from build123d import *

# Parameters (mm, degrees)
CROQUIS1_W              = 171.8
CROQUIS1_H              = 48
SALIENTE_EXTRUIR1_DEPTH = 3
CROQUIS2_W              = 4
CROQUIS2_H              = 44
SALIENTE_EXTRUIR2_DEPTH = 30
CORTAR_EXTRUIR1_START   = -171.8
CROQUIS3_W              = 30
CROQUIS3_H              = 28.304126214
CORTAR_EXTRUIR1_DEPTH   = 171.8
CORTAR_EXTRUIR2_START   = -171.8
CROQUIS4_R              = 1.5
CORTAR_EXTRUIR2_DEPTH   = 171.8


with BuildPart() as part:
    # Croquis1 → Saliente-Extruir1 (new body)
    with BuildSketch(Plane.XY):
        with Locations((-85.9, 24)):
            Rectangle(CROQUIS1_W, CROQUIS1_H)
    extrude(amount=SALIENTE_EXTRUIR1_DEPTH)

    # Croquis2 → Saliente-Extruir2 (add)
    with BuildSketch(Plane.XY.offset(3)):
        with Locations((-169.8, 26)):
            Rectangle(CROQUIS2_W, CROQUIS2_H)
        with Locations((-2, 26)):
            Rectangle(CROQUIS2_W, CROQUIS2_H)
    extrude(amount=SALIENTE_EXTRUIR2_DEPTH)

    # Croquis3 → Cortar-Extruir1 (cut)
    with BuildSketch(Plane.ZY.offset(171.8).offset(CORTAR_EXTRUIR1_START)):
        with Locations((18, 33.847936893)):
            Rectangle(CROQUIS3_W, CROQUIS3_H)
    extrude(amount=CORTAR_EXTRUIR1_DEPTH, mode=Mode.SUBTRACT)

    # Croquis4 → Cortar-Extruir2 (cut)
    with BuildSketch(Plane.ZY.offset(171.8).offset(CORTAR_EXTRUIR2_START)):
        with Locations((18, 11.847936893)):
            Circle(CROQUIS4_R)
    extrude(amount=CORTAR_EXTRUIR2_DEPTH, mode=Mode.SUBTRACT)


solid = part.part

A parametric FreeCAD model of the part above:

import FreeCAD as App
import Part
import Sketcher
Q = App.Units.Quantity


def add_polygon(sketch, points):
    """Adds a closed chain of lines whose ends are joined by coincident constraints."""
    first, n = sketch.GeometryCount, len(points)
    for a, b in zip(points, points[1:] + points[:1]):
        sketch.addGeometry(Part.LineSegment(App.Vector(*a, 0), App.Vector(*b, 0)), False)
    for i in range(n):
        sketch.addConstraint(Sketcher.Constraint("Coincident", first + i, 2, first + (i + 1) % n, 1))

doc = App.newDocument("Part")
params = doc.addObject("Spreadsheet::Sheet", "Params")
for row, (alias, value) in enumerate([
    ("sketch1_height", "48 mm"),
    ("sketch1_width", "171.8 mm"),
    ("pad1_length", "3 mm"),
    ("sketch2_width", "4 mm"),
    ("sketch2_height", "44 mm"),
    ("pad2_length", "30 mm"),
    ("sketch3_height", "30 mm"),
    ("pocket1_length", "171.8 mm"),
    ("sketch4_diameter", "3 mm"),
    ("pocket2_length", "171.8 mm"),
], start=1):
    params.set(f"A{row}", alias)
    params.set(f"B{row}", "=" + value)
    params.setAlias(f"B{row}", alias)

body = doc.addObject("PartDesign::Body", "Body")

# Sketch on XY plane
sketch1 = body.newObject("Sketcher::SketchObject", "Sketch")
sketch1.AttachmentSupport = (doc.getObject("XY_Plane"), [""])
sketch1.MapMode = "FlatFace"
add_polygon(sketch1, [(-172, 48), (-172, 0), (0, 0), (0, 48)])  # lines 0-3
sketch1.addConstraint([
    Sketcher.Constraint("Vertical", 0),
    Sketcher.Constraint("Horizontal", 1),
    Sketcher.Constraint("Vertical", 2),
    Sketcher.Constraint("Horizontal", 3),
    Sketcher.Constraint("Coincident", 1, 2, -1, 1),
    Sketcher.Constraint("DistanceY", 0, 2, 0, 1, Q("48 mm")),
    Sketcher.Constraint("DistanceX", 1, 1, 1, 2, Q("171.8 mm")),
])
sketch1.setExpression("Constraints[9]", "Params.sketch1_height")
sketch1.setExpression("Constraints[10]", "Params.sketch1_width")
pad1 = body.newObject("PartDesign::Pad", "Pad")
pad1.Profile = sketch1
pad1.setExpression("Length", "Params.pad1_length")

# Sketch on XY plane
sketch2 = body.newObject("Sketcher::SketchObject", "Sketch001")
sketch2.AttachmentSupport = (doc.getObject("XY_Plane"), [""])
sketch2.MapMode = "FlatFace"
sketch2.AttachmentOffset = App.Placement(App.Vector(0, 0, 3), App.Rotation())
add_polygon(sketch2, [(-171.8, 48), (-171.8, 4), (-167.8, 4), (-167.8, 48)])  # lines 0-3
add_polygon(sketch2, [(-4, 48), (-4, 4), (0, 4), (0, 48)])  # lines 4-7
sketch2.addConstraint([
    Sketcher.Constraint("Vertical", 0),
    Sketcher.Constraint("Horizontal", 1),
    Sketcher.Constraint("Vertical", 2),
    Sketcher.Constraint("Horizontal", 3),
    Sketcher.Constraint("Vertical", 4),
    Sketcher.Constraint("Horizontal", 5),
    Sketcher.Constraint("Vertical", 6),
    Sketcher.Constraint("Horizontal", 7),
    Sketcher.Constraint("PointOnObject", 5, 2, -2),
    Sketcher.Constraint("Horizontal", 1, 2, 4, 2),
    Sketcher.Constraint("Horizontal", 3, 2, 6, 2),
    Sketcher.Constraint("Equal", 3, 5),
    Sketcher.Constraint("DistanceX", 1, 1, 1, 2, Q("4 mm")),
    Sketcher.Constraint("DistanceY", 0, 2, 0, 1, Q("44 mm")),
    Sketcher.Constraint("DistanceY", -1, 1, 0, 2, Q("4 mm")),
    Sketcher.Constraint("DistanceX", 0, 2, -1, 1, Q("171.8 mm")),
])
sketch2.setExpression("Constraints[20]", "Params.sketch2_width")
sketch2.setExpression("Constraints[21]", "Params.sketch2_height")
pad2 = body.newObject("PartDesign::Pad", "Pad001")
pad2.Profile = sketch2
pad2.setExpression("Length", "Params.pad2_length")

# Sketch on YZ plane
sketch3 = body.newObject("Sketcher::SketchObject", "Sketch002")
sketch3.AttachmentSupport = (doc.getObject("YZ_Plane"), [""])
sketch3.MapMode = "FlatFace"
add_polygon(sketch3, [(48, 3), (20, 3), (20, 33), (48, 33)])  # lines 0-3
sketch3.addConstraint([
    Sketcher.Constraint("Horizontal", 0),
    Sketcher.Constraint("Vertical", 1),
    Sketcher.Constraint("Horizontal", 2),
    Sketcher.Constraint("Vertical", 3),
    Sketcher.Constraint("DistanceY", 1, 1, 1, 2, Q("30 mm")),
    Sketcher.Constraint("DistanceY", -1, 1, 0, 2, Q("3 mm")),
    Sketcher.Constraint("DistanceX", -1, 1, 2, 2, Q("48 mm")),
    Sketcher.Constraint("DistanceX", 0, 2, 0, 1, Q("28.304126 mm")),
])
sketch3.setExpression("Constraints[8]", "Params.sketch3_height")
pocket1 = body.newObject("PartDesign::Pocket", "Pocket")
pocket1.Profile = sketch3
pocket1.setExpression("Length", "Params.pocket1_length")

# Sketch on YZ plane
sketch4 = body.newObject("Sketcher::SketchObject", "Sketch003")
sketch4.AttachmentSupport = (doc.getObject("YZ_Plane"), [""])
sketch4.MapMode = "FlatFace"
sketch4.addGeometry(Part.Circle(App.Vector(11.8, 18, 0), App.Vector(0, 0, 1), 1.5), False)
sketch4.addConstraint([
    Sketcher.Constraint("Diameter", 0, Q("3 mm")),
    Sketcher.Constraint("DistanceY", -1, 1, 0, 3, Q("18 mm")),
    Sketcher.Constraint("DistanceX", -1, 1, 0, 3, Q("11.847937 mm")),
])
sketch4.setExpression("Constraints[0]", "Params.sketch4_diameter")
pocket2 = body.newObject("PartDesign::Pocket", "Pocket001")
pocket2.Profile = sketch4
pocket2.setExpression("Length", "Params.pocket2_length")

doc.recompute()
